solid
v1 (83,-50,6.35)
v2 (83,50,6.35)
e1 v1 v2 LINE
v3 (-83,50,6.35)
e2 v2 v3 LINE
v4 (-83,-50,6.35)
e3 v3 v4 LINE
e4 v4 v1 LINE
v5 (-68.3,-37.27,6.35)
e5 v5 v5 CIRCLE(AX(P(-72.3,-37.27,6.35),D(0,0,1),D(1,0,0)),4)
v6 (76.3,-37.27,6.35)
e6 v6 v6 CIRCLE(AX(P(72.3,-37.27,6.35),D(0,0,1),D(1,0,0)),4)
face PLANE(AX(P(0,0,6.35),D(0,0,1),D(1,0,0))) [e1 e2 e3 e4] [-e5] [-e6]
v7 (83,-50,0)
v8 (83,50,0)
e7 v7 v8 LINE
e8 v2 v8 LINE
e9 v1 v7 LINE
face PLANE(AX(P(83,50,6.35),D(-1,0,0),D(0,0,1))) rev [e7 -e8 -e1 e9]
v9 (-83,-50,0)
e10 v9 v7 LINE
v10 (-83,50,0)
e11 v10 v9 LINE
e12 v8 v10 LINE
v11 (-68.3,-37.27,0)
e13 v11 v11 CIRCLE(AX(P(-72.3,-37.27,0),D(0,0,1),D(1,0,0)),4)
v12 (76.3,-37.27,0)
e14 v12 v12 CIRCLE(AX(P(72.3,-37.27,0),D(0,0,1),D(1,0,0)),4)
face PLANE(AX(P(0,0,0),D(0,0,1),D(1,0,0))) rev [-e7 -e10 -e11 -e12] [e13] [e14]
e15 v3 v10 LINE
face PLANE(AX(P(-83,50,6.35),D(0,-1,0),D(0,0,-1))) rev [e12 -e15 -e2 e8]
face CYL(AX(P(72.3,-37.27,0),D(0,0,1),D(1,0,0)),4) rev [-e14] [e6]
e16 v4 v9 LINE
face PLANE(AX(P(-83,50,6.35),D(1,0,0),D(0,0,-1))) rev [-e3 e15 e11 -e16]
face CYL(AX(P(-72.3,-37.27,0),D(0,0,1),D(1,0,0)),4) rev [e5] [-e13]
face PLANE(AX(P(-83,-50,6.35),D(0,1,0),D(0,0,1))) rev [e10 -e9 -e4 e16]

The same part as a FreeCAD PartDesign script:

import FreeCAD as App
import Part
import Sketcher
from FreeCAD import Vector
Q = App.Units.Quantity

doc = App.newDocument("Part")
body = doc.addObject("PartDesign::Body", "Body")

sketch1 = body.newObject("Sketcher::SketchObject", "Sketch")
sketch1.AttachmentSupport = (doc.getObject("XY_Plane"), [""])
sketch1.MapMode = "FlatFace"
sketch1.addGeometry(Part.LineSegment(Vector(-83, 50, 0), Vector(-83, -50, 0)), False)
sketch1.addGeometry(Part.LineSegment(Vector(-83, -50, 0), Vector(83, -50, 0)), False)
sketch1.addGeometry(Part.LineSegment(Vector(83, -50, 0), Vector(83, 50, 0)), False)
sketch1.addGeometry(Part.LineSegment(Vector(83, 50, 0), Vector(-83, 50, 0)), False)
sketch1.addConstraint(Sketcher.Constraint("Coincident", 0, 2, 1, 1))
sketch1.addConstraint(Sketcher.Constraint("Coincident", 1, 2, 2, 1))
sketch1.addConstraint(Sketcher.Constraint("Coincident", 2, 2, 3, 1))
sketch1.addConstraint(Sketcher.Constraint("Coincident", 3, 2, 0, 1))
sketch1.addConstraint(Sketcher.Constraint("Vertical", 0))
sketch1.addConstraint(Sketcher.Constraint("Horizontal", 1))
sketch1.addConstraint(Sketcher.Constraint("Vertical", 2))
sketch1.addConstraint(Sketcher.Constraint("Horizontal", 3))
sketch1.addConstraint(Sketcher.Constraint("Symmetric", 0, 2, 2, 2, -1, 1))
sketch1.addConstraint(Sketcher.Constraint("DistanceX", 1, 1, 1, 2, Q("166 mm")))
sketch1.addConstraint(Sketcher.Constraint("DistanceY", 0, 2, 0, 1, Q("100 mm")))
pad1 = body.newObject("PartDesign::Pad", "Pad")
pad1.Profile = sketch1
pad1.Length = 6.35

sketch2 = body.newObject("Sketcher::SketchObject", "Sketch001")
sketch2.AttachmentSupport = (doc.getObject("XY_Plane"), [""])
sketch2.MapMode = "FlatFace"
sketch2.AttachmentOffset = App.Placement(Vector(0, 0, 6.35), App.Rotation())
sketch2.addGeometry(Part.Circle(Vector(-72.3, -37.3, 0), Vector(0, 0, 1), 4), False)
sketch2.addGeometry(Part.Circle(Vector(72.3, -37.3, 0), Vector(0, 0, 1), 4), False)
sketch2.addConstraint(Sketcher.Constraint("Equal", 0, 1))
sketch2.addConstraint(Sketcher.Constraint("Symmetric", 0, 3, 1, 3, -2))
sketch2.addConstraint(Sketcher.Constraint("Diameter", 0, Q("8 mm")))
sketch2.addConstraint(Sketcher.Constraint("DistanceX", 0, 3, -1, 1, Q("72.3 mm")))
sketch2.addConstraint(Sketcher.Constraint("DistanceY", 0, 3, -1, 1, Q("37.27 mm")))
pocket1 = body.newObject("PartDesign::Pocket", "Pocket")
pocket1.Profile = sketch2
pocket1.Length = 6.35

doc.recompute()
